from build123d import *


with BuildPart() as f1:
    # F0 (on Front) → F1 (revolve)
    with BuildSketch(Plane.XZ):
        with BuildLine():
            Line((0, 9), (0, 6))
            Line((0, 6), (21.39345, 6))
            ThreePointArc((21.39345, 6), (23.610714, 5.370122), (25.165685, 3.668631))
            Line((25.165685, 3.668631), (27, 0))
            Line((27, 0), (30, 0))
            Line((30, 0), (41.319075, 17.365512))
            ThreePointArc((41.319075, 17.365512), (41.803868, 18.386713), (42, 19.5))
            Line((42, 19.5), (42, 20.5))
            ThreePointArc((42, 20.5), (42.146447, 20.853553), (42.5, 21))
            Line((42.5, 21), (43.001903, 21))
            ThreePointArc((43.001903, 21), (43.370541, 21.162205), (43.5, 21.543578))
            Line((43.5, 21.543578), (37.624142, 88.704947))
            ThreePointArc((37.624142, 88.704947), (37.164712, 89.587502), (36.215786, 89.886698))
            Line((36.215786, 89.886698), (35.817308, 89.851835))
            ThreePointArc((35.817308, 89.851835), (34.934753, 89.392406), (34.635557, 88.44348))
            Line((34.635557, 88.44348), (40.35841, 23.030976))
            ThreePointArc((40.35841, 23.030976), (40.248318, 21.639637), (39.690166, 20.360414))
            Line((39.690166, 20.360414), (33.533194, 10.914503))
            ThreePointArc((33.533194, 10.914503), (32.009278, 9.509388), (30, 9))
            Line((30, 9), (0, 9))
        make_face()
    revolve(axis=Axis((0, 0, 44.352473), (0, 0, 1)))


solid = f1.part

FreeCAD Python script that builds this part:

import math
import FreeCAD as App
import Part
import Sketcher
Q = App.Units.Quantity

doc = App.newDocument("Part")
params = doc.addObject("Spreadsheet::Sheet", "Params")
for row, (alias, value) in enumerate([
    ("sketch1_radius", "0.500001 mm"),
    ("sketch1_radius2", "1.300001 mm"),
    ("sketch1_width", "3 mm"),
    ("sketch1_width2", "30 mm"),
    ("sketch1_height", "1 mm"),
    ("revolution_angle", "360 deg"),
], start=1):
    params.set(f"A{row}", alias)
    params.set(f"B{row}", "=" + value)
    params.setAlias(f"B{row}", alias)

body = doc.addObject("PartDesign::Body", "Body")

# Sketch on XZ plane
sketch1 = doc.addObject("Sketcher::SketchObject", "Sketch")
body.addObject(sketch1)
sketch1.AttachmentSupport = (doc.XZ_Plane, [""])
sketch1.MapMode = "FlatFace"
sketch1.addGeometry(Part.LineSegment(App.Vector(0, 9, 0), App.Vector(0, 6, 0)), False)
sketch1.addGeometry(Part.LineSegment(App.Vector(0, 6, 0), App.Vector(21.39, 6, 0)), False)
sketch1.addGeometry(Part.ArcOfCircle(Part.Circle(App.Vector(21.39, 1.78, 0), App.Vector(0, 0, 1), 4.22), math.radians(27), math.radians(90)), False)
sketch1.addGeometry(Part.LineSegment(App.Vector(25.17, 3.67, 0), App.Vector(27, 0, 0)), False)
sketch1.addGeometry(Part.LineSegment(App.Vector(27, 0, 0), App.Vector(30, 0, 0)), False)
sketch1.addGeometry(Part.LineSegment(App.Vector(30, 0, 0), App.Vector(41.32, 17.37, 0)), False)
sketch1.addGeometry(Part.ArcOfCircle(Part.Circle(App.Vector(37.79, 19.67, 0), App.Vector(0, 0, 1), 4.22), math.radians(-33), math.radians(-2)), False)
sketch1.addGeometry(Part.LineSegment(App.Vector(42, 19.5, 0), App.Vector(42, 20.5, 0)), False)
sketch1.addGeometry(Part.ArcOfCircle(Part.Circle(App.Vector(42.5, 20.5, 0), App.Vector(0, 0, 1), 0.5), math.radians(90), math.radians(180)), False)
sketch1.addGeometry(Part.LineSegment(App.Vector(42.5, 21, 0), App.Vector(43, 21, 0)), False)
sketch1.addGeometry(Part.ArcOfCircle(Part.Circle(App.Vector(43, 21.5, 0), App.Vector(0, 0, 1), 0.5), math.radians(-90), math.radians(5)), False)
sketch1.addGeometry(Part.LineSegment(App.Vector(43.5, 21.54, 0), App.Vector(37.62, 88.7, 0)), False)
sketch1.addGeometry(Part.ArcOfCircle(Part.Circle(App.Vector(36.33, 88.59, 0), App.Vector(0, 0, 1), 1.3), math.radians(5), math.radians(95)), False)
sketch1.addGeometry(Part.LineSegment(App.Vector(36.22, 89.89, 0), App.Vector(35.82, 89.85, 0)), False)
sketch1.addGeometry(Part.ArcOfCircle(Part.Circle(App.Vector(35.93, 88.56, 0), App.Vector(0, 0, 1), 1.3), math.radians(95), math.radians(185)), False)
sketch1.addGeometry(Part.LineSegment(App.Vector(34.64, 88.44, 0), App.Vector(40.36, 23.03, 0)), False)
sketch1.addGeometry(Part.ArcOfCircle(Part.Circle(App.Vector(36.16, 22.66, 0), App.Vector(0, 0, 1), 4.22), math.radians(-33), math.radians(5)), False)
sketch1.addGeometry(Part.LineSegment(App.Vector(39.69, 20.36, 0), App.Vector(33.53, 10.91, 0)), False)
sketch1.addGeometry(Part.ArcOfCircle(Part.Circle(App.Vector(30, 13.22, 0), App.Vector(0, 0, 1), 4.22), math.radians(-90), math.radians(-33)), False)
sketch1.addGeometry(Part.LineSegment(App.Vector(30, 9, 0), App.Vector(0, 9, 0)), False)
sketch1.addConstraint(Sketcher.Constraint("Coincident", 0, 2, 1, 1))
sketch1.addConstraint(Sketcher.Constraint("Tangent", 1, 2, 2, 2))
sketch1.addConstraint(Sketcher.Constraint("Tangent", 2, 1, 3, 1))
sketch1.addConstraint(Sketcher.Constraint("Coincident", 3, 2, 4, 1))
sketch1.addConstraint(Sketcher.Constraint("Coincident", 4, 2, 5, 1))
sketch1.addConstraint(Sketcher.Constraint("Tangent", 5, 2, 6, 1))
sketch1.addConstraint(Sketcher.Constraint("Coincident", 6, 2, 7, 1))
sketch1.addConstraint(Sketcher.Constraint("Coincident", 7, 2, 8, 2))
sketch1.addConstraint(Sketcher.Constraint("Coincident", 8, 1, 9, 1))
sketch1.addConstraint(Sketcher.Constraint("Coincident", 9, 2, 10, 1))
sketch1.addConstraint(Sketcher.Constraint("Tangent", 10, 2, 11, 1))
sketch1.addConstraint(Sketcher.Constraint("Tangent", 11, 2, 12, 1))
sketch1.addConstraint(Sketcher.Constraint("Coincident", 12, 2, 13, 1))
sketch1.addConstraint(Sketcher.Constraint("Tangent", 13, 2, 14, 1))
sketch1.addConstraint(Sketcher.Constraint("Tangent", 14, 2, 15, 1))
sketch1.addConstraint(Sketcher.Constraint("Tangent", 15, 2, 16, 2))
sketch1.addConstraint(Sketcher.Constraint("Tangent", 16, 1, 17, 1))
sketch1.addConstraint(Sketcher.Constraint("Tangent", 17, 2, 18, 2))
sketch1.addConstraint(Sketcher.Constraint("Tangent", 18, 1, 19, 1))
sketch1.addConstraint(Sketcher.Constraint("Coincident", 19, 2, 0, 1))
sketch1.addConstraint(Sketcher.Constraint("Vertical", 0))
sketch1.addConstraint(Sketcher.Constraint("Horizontal", 1))
sketch1.addConstraint(Sketcher.Constraint("Horizontal", 4))
sketch1.addConstraint(Sketcher.Constraint("Vertical", 7))
sketch1.addConstraint(Sketcher.Constraint("Horizontal", 9))
sketch1.addConstraint(Sketcher.Constraint("Horizontal", 19))
sketch1.addConstraint(Sketcher.Constraint("Equal", 8, 10))
sketch1.addConstraint(Sketcher.Constraint("Equal", 12, 14))
sketch1.addConstraint(Sketcher.Constraint("Equal", 2, 18))
sketch1.addConstraint(Sketcher.Constraint("PointOnObject", 0, 2, -2))
sketch1.addConstraint(Sketcher.Constraint("PointOnObject", 3, 2, -1))
sketch1.addConstraint(Sketcher.Constraint("Perpendicular", 11, 13))
sketch1.addConstraint(Sketcher.Constraint("Perpendicular", 13, 15))
sketch1.addConstraint(Sketcher.Constraint("Parallel", 5, 17))
sketch1.addConstraint(Sketcher.Constraint("Horizontal", 8, 3, 7, 2))
sketch1.addConstraint(Sketcher.Constraint("Vertical", 18, 3, 4, 2))
sketch1.addConstraint(Sketcher.Constraint("Vertical", 10, 3, 9, 2))
sketch1.addConstraint(Sketcher.Constraint("Equal", 4, 0))
sketch1.addConstraint(Sketcher.Constraint("Radius", 8, Q("0.500001 mm")))
sketch1.addConstraint(Sketcher.Constraint("Radius", 14, Q("1.300001 mm")))
sketch1.addConstraint(Sketcher.Constraint("DistanceX", 4, 1, 4, 2, Q("3 mm")))
sketch1.addConstraint(Sketcher.Constraint("DistanceX", 19, 2, 19, 1, Q("30 mm")))
sketch1.addConstraint(Sketcher.Constraint("DistanceY", 7, 1, 7, 2, Q("1 mm")))
sketch1.addConstraint(Sketcher.Constraint("Angle", 11, Q("95 deg")))
sketch1.addConstraint(Sketcher.Constraint("DistanceY", -1, 1, 0, 2, Q("6 mm")))
sketch1.addConstraint(Sketcher.Constraint("DistanceX", -1, 1, 6, 2, Q("42 mm")))
sketch1.addConstraint(Sketcher.Constraint("DistanceY", -1, 1, 8, 1, Q("21 mm")))
sketch1.addConstraint(Sketcher.Constraint("DistanceX", 8, 1, 10, 2, Q("1 mm")))
sketch1.addConstraint(Sketcher.Constraint("DistanceX", 8, 3, 10, 2, Q("0.999999 mm")))
sketch1.addConstraint(Sketcher.Constraint("Distance", 13, Q("0.4 mm")))
sketch1.addConstraint(Sketcher.Constraint("Radius", 16, Q("4.217479 mm")))
sketch1.addConstraint(Sketcher.Constraint("Radius", 2, Q("4.217487 mm")))
sketch1.addConstraint(Sketcher.Constraint("Radius", 6, Q("4.217503 mm")))
sketch1.addConstraint(Sketcher.Constraint("DistanceX", 1, 1, 1, 2, Q("21.39345 mm")))
sketch1.addConstraint(Sketcher.Constraint("DistanceY", -1, 1, 6, 3, Q("19.6685 mm")))
sketch1.addConstraint(Sketcher.Constraint("DistanceX", 12, 2, 12, 3, Q("0.113301 mm")))
sketch1.addConstraint(Sketcher.Constraint("DistanceY", 16, 3, 12, 2, Q("67.223302 mm")))
sketch1.setExpression("Constraints[38]", "Params.sketch1_radius")
sketch1.setExpression("Constraints[39]", "Params.sketch1_radius2")
sketch1.setExpression("Constraints[40]", "Params.sketch1_width")
sketch1.setExpression("Constraints[41]", "Params.sketch1_width2")
sketch1.setExpression("Constraints[42]", "Params.sketch1_height")
revolution = doc.addObject("PartDesign::Revolution", "Revolution")
body.addObject(revolution)
revolution.Profile = sketch1
revolution.ReferenceAxis = (sketch1, ["V_Axis"])
revolution.setExpression("Angle", "Params.revolution_angle")

doc.recompute()
